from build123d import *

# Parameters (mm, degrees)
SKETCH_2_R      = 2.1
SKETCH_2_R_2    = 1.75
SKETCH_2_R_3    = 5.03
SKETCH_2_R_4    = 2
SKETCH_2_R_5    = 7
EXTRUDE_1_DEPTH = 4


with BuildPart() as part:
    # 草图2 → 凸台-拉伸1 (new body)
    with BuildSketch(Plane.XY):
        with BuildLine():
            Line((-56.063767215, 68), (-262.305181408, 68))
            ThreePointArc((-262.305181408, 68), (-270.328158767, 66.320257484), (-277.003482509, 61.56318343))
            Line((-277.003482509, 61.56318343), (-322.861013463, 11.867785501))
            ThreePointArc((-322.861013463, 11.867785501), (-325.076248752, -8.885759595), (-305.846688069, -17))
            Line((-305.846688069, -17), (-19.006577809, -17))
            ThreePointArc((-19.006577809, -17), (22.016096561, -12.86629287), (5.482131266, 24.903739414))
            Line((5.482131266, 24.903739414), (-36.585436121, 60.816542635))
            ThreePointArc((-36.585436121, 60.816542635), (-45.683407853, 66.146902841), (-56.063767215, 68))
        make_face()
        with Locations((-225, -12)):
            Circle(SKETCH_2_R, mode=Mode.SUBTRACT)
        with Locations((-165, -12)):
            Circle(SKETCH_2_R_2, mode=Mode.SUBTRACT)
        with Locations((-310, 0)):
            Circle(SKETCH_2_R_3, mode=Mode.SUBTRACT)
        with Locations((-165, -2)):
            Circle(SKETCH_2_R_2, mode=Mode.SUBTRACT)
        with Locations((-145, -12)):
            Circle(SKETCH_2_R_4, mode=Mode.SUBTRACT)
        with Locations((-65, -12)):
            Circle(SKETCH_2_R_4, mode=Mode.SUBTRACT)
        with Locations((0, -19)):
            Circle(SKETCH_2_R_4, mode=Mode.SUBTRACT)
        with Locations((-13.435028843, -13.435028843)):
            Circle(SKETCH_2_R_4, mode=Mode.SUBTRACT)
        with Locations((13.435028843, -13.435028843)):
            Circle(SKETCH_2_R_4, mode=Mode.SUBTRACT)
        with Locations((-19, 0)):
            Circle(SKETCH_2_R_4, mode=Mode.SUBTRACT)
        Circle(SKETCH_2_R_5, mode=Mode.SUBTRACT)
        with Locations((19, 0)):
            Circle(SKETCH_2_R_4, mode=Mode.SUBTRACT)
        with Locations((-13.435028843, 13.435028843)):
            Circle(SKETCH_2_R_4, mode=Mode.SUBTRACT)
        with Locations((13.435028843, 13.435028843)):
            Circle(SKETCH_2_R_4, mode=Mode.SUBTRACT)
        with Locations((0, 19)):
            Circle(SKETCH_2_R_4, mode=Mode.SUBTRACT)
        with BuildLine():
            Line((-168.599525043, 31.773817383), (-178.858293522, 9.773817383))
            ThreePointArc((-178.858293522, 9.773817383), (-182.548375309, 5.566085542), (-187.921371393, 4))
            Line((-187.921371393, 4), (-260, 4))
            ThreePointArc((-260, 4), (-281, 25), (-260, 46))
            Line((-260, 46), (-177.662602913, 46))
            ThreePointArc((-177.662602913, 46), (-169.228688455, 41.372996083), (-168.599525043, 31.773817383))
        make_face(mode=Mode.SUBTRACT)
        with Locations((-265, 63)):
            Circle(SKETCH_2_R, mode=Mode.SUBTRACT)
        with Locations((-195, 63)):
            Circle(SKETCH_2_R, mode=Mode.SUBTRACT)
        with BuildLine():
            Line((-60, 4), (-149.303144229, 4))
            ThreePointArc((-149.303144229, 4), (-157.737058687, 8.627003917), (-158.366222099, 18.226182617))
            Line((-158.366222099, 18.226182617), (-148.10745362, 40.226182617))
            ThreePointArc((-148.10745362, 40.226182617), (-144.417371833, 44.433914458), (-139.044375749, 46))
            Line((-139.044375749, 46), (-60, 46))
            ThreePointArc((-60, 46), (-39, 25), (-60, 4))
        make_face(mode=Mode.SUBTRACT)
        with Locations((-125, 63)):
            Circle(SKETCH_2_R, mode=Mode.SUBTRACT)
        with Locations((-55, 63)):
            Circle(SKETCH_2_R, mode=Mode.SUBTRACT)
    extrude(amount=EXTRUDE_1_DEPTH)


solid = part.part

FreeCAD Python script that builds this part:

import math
import FreeCAD as App
import Part
import Sketcher

V = App.Vector
Q = App.Units.Quantity

doc = App.newDocument("Part")
params = doc.addObject("Spreadsheet::Sheet", "Params")
for row, (alias, value) in enumerate([
    ("sketch1_diameter", "4 mm"),
    ("sketch1_diameter2", "14 mm"),
    ("sketch1_radius", "20 mm"),
    ("sketch1_radius2", "30 mm"),
    ("sketch1_radius3", "10 mm"),
    ("pad1_length", "4 mm"),
], start=1):
    params.set(f"A{row}", alias)
    params.set(f"B{row}", "=" + value)
    params.setAlias(f"B{row}", alias)

body = doc.addObject("PartDesign::Body", "Body")

# Sketch on XY plane
sketch1 = doc.addObject("Sketcher::SketchObject", "Sketch")
body.addObject(sketch1)
sketch1.AttachmentSupport = (doc.XY_Plane, [""])
sketch1.MapMode = "FlatFace"
sketch1.addGeometry([
    Part.LineSegment(V(-56.1, 68, 0), V(-262.3, 68, 0)),  # 0
    Part.ArcOfCircle(Part.Circle(V(-262.3, 48, 0), V(0, 0, 1), 20), math.radians(90), math.radians(137)),  # 1
    Part.LineSegment(V(-277, 61.6, 0), V(-322.9, 11.9, 0)),  # 2
    Part.ArcOfCircle(Part.Circle(V(-310, 0, 0), V(0, 0, 1), 17.5), math.radians(137), math.radians(284)),  # 3
    Part.LineSegment(V(-305.8, -17, 0), V(-19, -17, 0)),  # 4
    Part.ArcOfCircle(Part.Circle(V(0, 0, 0), V(0, 0, 1), 25.5), math.radians(-138), math.radians(78)),  # 5
    Part.LineSegment(V(5.5, 24.9, 0), V(-36.6, 60.8, 0)),  # 6
    Part.ArcOfCircle(Part.Circle(V(-56.1, 38, 0), V(0, 0, 1), 30), math.radians(50), math.radians(90)),  # 7
    Part.Circle(V(-310, 0, 0), V(0, 0, 1), 5),  # 8
    Part.Circle(V(-225, -12, 0), V(0, 0, 1), 2.1),  # 9
    Part.Circle(V(-165, -12, 0), V(0, 0, 1), 1.8),  # 10
    Part.Circle(V(-165, -2, 0), V(0, 0, 1), 1.8),  # 11
    Part.Circle(V(-145, -12, 0), V(0, 0, 1), 2),  # 12
    Part.Circle(V(-65, -12, 0), V(0, 0, 1), 2),  # 13
    Part.Circle(V(0, -19, 0), V(0, 0, 1), 2),  # 14
    Part.Circle(V(-13.4, -13.4, 0), V(0, 0, 1), 2),  # 15
    Part.Circle(V(13.4, -13.4, 0), V(0, 0, 1), 2),  # 16
    Part.Circle(V(-19, 0, 0), V(0, 0, 1), 2),  # 17
    Part.Circle(V(0, 0, 0), V(0, 0, 1), 7),  # 18
    Part.Circle(V(19, 0, 0), V(0, 0, 1), 2),  # 19
    Part.Circle(V(-13.4, 13.4, 0), V(0, 0, 1), 2),  # 20
    Part.Circle(V(13.4, 13.4, 0), V(0, 0, 1), 2),  # 21
    Part.Circle(V(0, 19, 0), V(0, 0, 1), 2),  # 22
    Part.ArcOfCircle(Part.Circle(V(-177.7, 36, 0), V(0, 0, 1), 10), math.radians(-25), math.radians(90)),  # 23
    Part.LineSegment(V(-168.6, 31.8, 0), V(-178.9, 9.8, 0)),  # 24
    Part.ArcOfCircle(Part.Circle(V(-187.9, 14, 0), V(0, 0, 1), 10), math.radians(-90), math.radians(-25)),  # 25
    Part.LineSegment(V(-187.9, 4, 0), V(-260, 4, 0)),  # 26
    Part.ArcOfCircle(Part.Circle(V(-260, 25, 0), V(0, 0, 1), 21), math.radians(90), math.radians(270)),  # 27
    Part.LineSegment(V(-260, 46, 0), V(-177.7, 46, 0)),  # 28
    Part.Circle(V(-265, 63, 0), V(0, 0, 1), 2.1),  # 29
    Part.Circle(V(-195, 63, 0), V(0, 0, 1), 2.1),  # 30
    Part.ArcOfCircle(Part.Circle(V(-60, 25, 0), V(0, 0, 1), 21), math.radians(-90), math.radians(90)),  # 31
    Part.LineSegment(V(-60, 4, 0), V(-149.3, 4, 0)),  # 32
    Part.ArcOfCircle(Part.Circle(V(-149.3, 14, 0), V(0, 0, 1), 10), math.radians(155), math.radians(270)),  # 33
    Part.LineSegment(V(-158.4, 18.2, 0), V(-148.1, 40.2, 0)),  # 34
    Part.ArcOfCircle(Part.Circle(V(-139, 36, 0), V(0, 0, 1), 10), math.radians(90), math.radians(155)),  # 35
    Part.LineSegment(V(-139, 46, 0), V(-60, 46, 0)),  # 36
    Part.Circle(V(-125, 63, 0), V(0, 0, 1), 2.1),  # 37
    Part.Circle(V(-55, 63, 0), V(0, 0, 1), 2.1),  # 38
], False)
sketch1.addConstraint([
    Sketcher.Constraint("Tangent", 0, 2, 1, 1),
    Sketcher.Constraint("Tangent", 1, 2, 2, 1),
    Sketcher.Constraint("Tangent", 2, 2, 3, 1),
    Sketcher.Constraint("Coincident", 3, 2, 4, 1),
    Sketcher.Constraint("Coincident", 4, 2, 5, 1),
    Sketcher.Constraint("Coincident", 5, 2, 6, 1),
    Sketcher.Constraint("Tangent", 6, 2, 7, 1),
    Sketcher.Constraint("Tangent", 7, 2, 0, 1),
    Sketcher.Constraint("Tangent", 23, 1, 24, 1),
    Sketcher.Constraint("Tangent", 24, 2, 25, 2),
    Sketcher.Constraint("Tangent", 25, 1, 26, 1),
    Sketcher.Constraint("Tangent", 26, 2, 27, 2),
    Sketcher.Constraint("Tangent", 27, 1, 28, 1),
    Sketcher.Constraint("Tangent", 28, 2, 23, 2),
    Sketcher.Constraint("Tangent", 31, 1, 32, 1),
    Sketcher.Constraint("Tangent", 32, 2, 33, 2),
    Sketcher.Constraint("Tangent", 33, 1, 34, 1),
    Sketcher.Constraint("Tangent", 34, 2, 35, 2),
    Sketcher.Constraint("Tangent", 35, 1, 36, 1),
    Sketcher.Constraint("Tangent", 36, 2, 31, 2),
    Sketcher.Constraint("Horizontal", 0),
    Sketcher.Constraint("Horizontal", 4),
    Sketcher.Constraint("Horizontal", 26),
    Sketcher.Constraint("Horizontal", 28),
    Sketcher.Constraint("Horizontal", 32),
    Sketcher.Constraint("Horizontal", 36),
    Sketcher.Constraint("Coincident", 5, 3, -1, 1),
    Sketcher.Constraint("Coincident", 18, 3, -1, 1),
    Sketcher.Constraint("Coincident", 8, 3, 3, 3),
    Sketcher.Constraint("Equal", 10, 11),
    Sketcher.Constraint("Equal", 12, 13),
    Sketcher.Constraint("Equal", 13, 14),
    Sketcher.Constraint("Equal", 14, 15),
    Sketcher.Constraint("Equal", 15, 16),
    Sketcher.Constraint("Equal", 16, 17),
    Sketcher.Constraint("Equal", 17, 19),
    Sketcher.Constraint("Equal", 19, 20),
    Sketcher.Constraint("Equal", 20, 21),
    Sketcher.Constraint("Equal", 21, 22),
    Sketcher.Constraint("Equal", 23, 25),
    Sketcher.Constraint("Equal", 9, 29),
    Sketcher.Constraint("Equal", 29, 30),
    Sketcher.Constraint("Equal", 27, 31),
    Sketcher.Constraint("Equal", 25, 33),
    Sketcher.Constraint("Equal", 33, 35),
    Sketcher.Constraint("Equal", 30, 37),
    Sketcher.Constraint("Equal", 37, 38),
    Sketcher.Constraint("Symmetric", 17, 3, 19, 3, -1, 1),
    Sketcher.Constraint("Symmetric", 16, 3, 20, 3, -1, 1),
    Sketcher.Constraint("Symmetric", 15, 3, 21, 3, -1, 1),
    Sketcher.Constraint("Symmetric", 14, 3, 22, 3, -1, 1),
    Sketcher.Constraint("Symmetric", 15, 3, 16, 3, -2),
    Sketcher.Constraint("PointOnObject", 3, 3, -1),
    Sketcher.Constraint("PointOnObject", 14, 3, -2),
    Sketcher.Constraint("PointOnObject", 17, 3, -1),
    Sketcher.Constraint("Parallel", 24, 34),
    Sketcher.Constraint("Horizontal", 9, 3, 10, 3),
    Sketcher.Constraint("Horizontal", 10, 3, 12, 3),
    Sketcher.Constraint("Horizontal", 12, 3, 13, 3),
    Sketcher.Constraint("Horizontal", 29, 3, 30, 3),
    Sketcher.Constraint("Horizontal", 27, 3, 31, 3),
    Sketcher.Constraint("Horizontal", 30, 3, 37, 3),
    Sketcher.Constraint("Horizontal", 37, 3, 38, 3),
    Sketcher.Constraint("Vertical", 10, 3, 11, 3),
    Sketcher.Constraint("Diameter", 12, Q("4 mm")),
    Sketcher.Constraint("Diameter", 18, Q("14 mm")),
    Sketcher.Constraint("Radius", 1, Q("20 mm")),
    Sketcher.Constraint("Radius", 7, Q("30 mm")),
    Sketcher.Constraint("Radius", 23, Q("10 mm")),
    Sketcher.Constraint("Radius", 27, Q("21 mm")),
    Sketcher.Constraint("Diameter", 9, Q("4.2 mm")),
    Sketcher.Constraint("Diameter", 10, Q("3.5 mm")),
    Sketcher.Constraint("Radius", 3, Q("17.5 mm")),
    Sketcher.Constraint("Radius", 5, Q("25.5 mm")),
    Sketcher.Constraint("Diameter", 8, Q("10.06 mm")),
    Sketcher.Constraint("Angle", 24, Q("-115 deg")),
    Sketcher.Constraint("DistanceY", -1, 1, 1, 3, Q("48 mm")),
    Sketcher.Constraint("DistanceX", 3, 3, -1, 1, Q("310 mm")),
    Sketcher.Constraint("DistanceX", 9, 3, -1, 1, Q("225 mm")),
    Sketcher.Constraint("DistanceY", 9, 3, -1, 1, Q("12 mm")),
    Sketcher.Constraint("DistanceX", 10, 3, -1, 1, Q("165 mm")),
    Sketcher.Constraint("DistanceY", 11, 3, -1, 1, Q("2 mm")),
    Sketcher.Constraint("DistanceX", 12, 3, -1, 1, Q("145 mm")),
    Sketcher.Constraint("DistanceX", 13, 3, -1, 1, Q("65 mm")),
    Sketcher.Constraint("DistanceY", 14, 3, -1, 1, Q("19 mm")),
    Sketcher.Constraint("DistanceX", 17, 3, -1, 1, Q("19 mm")),
    Sketcher.Constraint("DistanceY", -1, 1, 23, 3, Q("36 mm")),
    Sketcher.Constraint("DistanceX", 27, 3, -1, 1, Q("260 mm")),
    Sketcher.Constraint("DistanceX", 29, 3, -1, 1, Q("265 mm")),
    Sketcher.Constraint("DistanceY", -1, 1, 29, 3, Q("63 mm")),
    Sketcher.Constraint("DistanceX", 30, 3, -1, 1, Q("195 mm")),
    Sketcher.Constraint("DistanceX", 31, 3, -1, 1, Q("60 mm")),
    Sketcher.Constraint("DistanceX", 37, 3, -1, 1, Q("125 mm")),
    Sketcher.Constraint("DistanceX", 38, 3, -1, 1, Q("55 mm")),
    Sketcher.Constraint("DistanceY", 3, 2, -1, 1, Q("17 mm")),
    Sketcher.Constraint("Distance", 2, Q("67.620601 mm")),
    Sketcher.Constraint("DistanceX", 26, 2, 26, 1, Q("72.078629 mm")),
    Sketcher.Constraint("Distance", 6, Q("55.311931 mm")),
    Sketcher.Constraint("DistanceX", 0, 2, 0, 1, Q("206.241414 mm")),
    Sketcher.Constraint("DistanceX", 32, 2, 32, 1, Q("89.303144 mm")),
    Sketcher.Constraint("DistanceX", 15, 3, -1, 1, Q("13.435029 mm")),
    Sketcher.Constraint("DistanceY", 15, 3, -1, 1, Q("13.435029 mm")),
])
sketch1.setExpression("Constraints[64]", "Params.sketch1_diameter")
sketch1.setExpression("Constraints[65]", "Params.sketch1_diameter2")
sketch1.setExpression("Constraints[66]", "Params.sketch1_radius")
sketch1.setExpression("Constraints[67]", "Params.sketch1_radius2")
sketch1.setExpression("Constraints[68]", "Params.sketch1_radius3")
pad1 = doc.addObject("PartDesign::Pad", "Pad")
body.addObject(pad1)
pad1.Profile = sketch1
pad1.setExpression("Length", "Params.pad1_length")

doc.recompute()
